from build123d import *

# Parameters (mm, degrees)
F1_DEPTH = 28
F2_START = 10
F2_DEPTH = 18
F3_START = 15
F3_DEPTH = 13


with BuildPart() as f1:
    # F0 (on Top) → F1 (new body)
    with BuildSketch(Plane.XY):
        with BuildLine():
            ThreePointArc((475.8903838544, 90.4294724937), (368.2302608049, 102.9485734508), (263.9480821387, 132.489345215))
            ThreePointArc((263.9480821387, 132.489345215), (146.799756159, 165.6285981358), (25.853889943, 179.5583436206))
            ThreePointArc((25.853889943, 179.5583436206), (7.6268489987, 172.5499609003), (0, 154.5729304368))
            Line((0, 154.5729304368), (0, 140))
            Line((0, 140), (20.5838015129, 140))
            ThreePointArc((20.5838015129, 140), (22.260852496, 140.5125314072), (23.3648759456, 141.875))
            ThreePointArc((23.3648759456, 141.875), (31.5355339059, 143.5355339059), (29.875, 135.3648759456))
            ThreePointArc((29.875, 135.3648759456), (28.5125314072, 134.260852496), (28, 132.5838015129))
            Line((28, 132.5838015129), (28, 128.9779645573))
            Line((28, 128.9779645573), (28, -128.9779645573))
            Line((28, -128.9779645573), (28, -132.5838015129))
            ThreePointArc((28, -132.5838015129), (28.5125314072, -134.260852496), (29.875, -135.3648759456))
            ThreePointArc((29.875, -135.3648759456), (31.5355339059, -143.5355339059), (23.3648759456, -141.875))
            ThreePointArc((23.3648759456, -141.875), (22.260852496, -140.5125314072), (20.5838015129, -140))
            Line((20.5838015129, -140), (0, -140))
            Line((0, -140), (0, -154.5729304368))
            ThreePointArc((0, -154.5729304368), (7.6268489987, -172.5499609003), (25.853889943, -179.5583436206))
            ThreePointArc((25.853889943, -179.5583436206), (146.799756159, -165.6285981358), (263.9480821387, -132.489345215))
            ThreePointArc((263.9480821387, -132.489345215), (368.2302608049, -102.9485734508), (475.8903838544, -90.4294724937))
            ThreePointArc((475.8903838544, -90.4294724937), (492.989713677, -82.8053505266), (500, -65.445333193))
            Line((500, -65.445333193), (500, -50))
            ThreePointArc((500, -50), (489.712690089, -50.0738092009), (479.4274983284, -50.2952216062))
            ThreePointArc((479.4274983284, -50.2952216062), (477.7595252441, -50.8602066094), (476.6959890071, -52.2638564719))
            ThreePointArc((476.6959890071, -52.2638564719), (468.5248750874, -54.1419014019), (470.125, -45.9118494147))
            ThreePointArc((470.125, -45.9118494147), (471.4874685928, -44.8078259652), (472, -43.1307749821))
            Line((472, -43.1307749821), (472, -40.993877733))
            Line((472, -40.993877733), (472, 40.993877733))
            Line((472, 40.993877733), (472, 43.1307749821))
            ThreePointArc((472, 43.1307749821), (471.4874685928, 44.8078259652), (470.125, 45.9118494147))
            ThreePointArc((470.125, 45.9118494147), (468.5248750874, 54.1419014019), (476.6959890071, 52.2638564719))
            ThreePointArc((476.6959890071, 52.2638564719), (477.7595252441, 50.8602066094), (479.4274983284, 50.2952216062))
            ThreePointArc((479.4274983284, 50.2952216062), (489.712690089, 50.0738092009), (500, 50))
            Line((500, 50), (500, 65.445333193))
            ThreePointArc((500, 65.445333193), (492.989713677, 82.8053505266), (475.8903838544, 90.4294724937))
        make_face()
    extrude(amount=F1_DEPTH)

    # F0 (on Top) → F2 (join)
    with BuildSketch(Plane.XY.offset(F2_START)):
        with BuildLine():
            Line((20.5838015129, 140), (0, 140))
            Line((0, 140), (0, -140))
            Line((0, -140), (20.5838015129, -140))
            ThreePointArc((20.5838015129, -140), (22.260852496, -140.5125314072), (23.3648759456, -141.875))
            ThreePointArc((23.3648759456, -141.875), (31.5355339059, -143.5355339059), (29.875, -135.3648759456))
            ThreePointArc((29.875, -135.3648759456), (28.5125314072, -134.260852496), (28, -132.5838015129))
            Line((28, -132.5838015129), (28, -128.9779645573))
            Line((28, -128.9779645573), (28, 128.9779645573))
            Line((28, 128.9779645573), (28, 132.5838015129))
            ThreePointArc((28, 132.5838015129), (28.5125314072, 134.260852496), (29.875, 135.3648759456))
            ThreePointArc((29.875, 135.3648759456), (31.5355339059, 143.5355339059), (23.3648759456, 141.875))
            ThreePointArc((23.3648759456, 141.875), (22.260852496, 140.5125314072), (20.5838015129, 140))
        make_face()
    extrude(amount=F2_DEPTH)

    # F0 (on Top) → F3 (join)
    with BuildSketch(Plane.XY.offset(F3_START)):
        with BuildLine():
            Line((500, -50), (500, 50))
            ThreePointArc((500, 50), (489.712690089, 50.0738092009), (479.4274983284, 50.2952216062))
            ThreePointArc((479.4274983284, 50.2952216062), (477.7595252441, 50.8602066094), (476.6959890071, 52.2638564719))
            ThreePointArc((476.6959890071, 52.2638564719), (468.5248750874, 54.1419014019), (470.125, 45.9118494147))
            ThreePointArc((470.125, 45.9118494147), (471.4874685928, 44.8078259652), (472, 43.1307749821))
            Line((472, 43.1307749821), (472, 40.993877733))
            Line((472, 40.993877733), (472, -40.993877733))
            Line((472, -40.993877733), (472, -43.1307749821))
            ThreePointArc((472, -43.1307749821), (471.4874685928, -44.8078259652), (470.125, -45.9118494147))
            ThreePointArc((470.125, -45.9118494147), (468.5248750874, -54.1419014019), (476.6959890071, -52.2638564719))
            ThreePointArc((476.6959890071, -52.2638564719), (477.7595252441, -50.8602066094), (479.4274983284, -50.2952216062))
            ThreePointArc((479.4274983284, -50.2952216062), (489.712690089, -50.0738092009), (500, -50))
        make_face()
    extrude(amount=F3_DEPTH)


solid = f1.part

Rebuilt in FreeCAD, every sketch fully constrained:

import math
import FreeCAD as App
import Part
import Sketcher

V = App.Vector

doc = App.newDocument("Part")
params = doc.addObject("Spreadsheet::Sheet", "Params")
for row, (alias, value) in enumerate([
    ("sketch1_radius", "25 mm"),
    ("sketch1_radius2", "3 mm"),
    ("sketch1_radius3", "5 mm"),
    ("pad1_length", "28 mm"),
    ("sketch2_radius", "3 mm"),
    ("sketch2_radius2", "5 mm"),
    ("sketch2_height", "280 mm"),
    ("pad2_length", "18 mm"),
    ("sketch3_radius", "3 mm"),
    ("sketch3_radius2", "5 mm"),
    ("sketch3_height", "100 mm"),
    ("pad3_length", "13 mm"),
], start=1):
    params.set(f"A{row}", alias)
    params.set(f"B{row}", "=" + value)
    params.setAlias(f"B{row}", alias)

body = doc.addObject("PartDesign::Body", "Body")

# Sketch on XY plane
sketch1 = body.newObject("Sketcher::SketchObject", "Sketch")
sketch1.AttachmentSupport = (doc.getObject("XY_Plane"), [""])
sketch1.MapMode = "FlatFace"
sketch1.addGeometry([
    Part.ArcOfCircle(Part.Circle(V(500, 766.944444, 0), V(0, 0, 1), 676.944444), math.radians(-110.407947), math.radians(-92.041041)),  # 0
    Part.ArcOfCircle(Part.Circle(V(0, -576.944444, 0), V(0, 0, 1), 756.944444), math.radians(69.592053), math.radians(88.042648)),  # 1
    Part.ArcOfCircle(Part.Circle(V(25, 154.57293, 0), V(0, 0, 1), 25), math.radians(88.042648), math.radians(180)),  # 2
    Part.LineSegment(V(0, 154.57293, 0), V(0, 140, 0)),  # 3
    Part.LineSegment(V(0, 140, 0), V(20.583802, 140, 0)),  # 4
    Part.ArcOfCircle(Part.Circle(V(20.583802, 143, 0), V(0, 0, 1), 3), math.radians(-90), math.radians(-22.024313)),  # 5
    Part.ArcOfCircle(Part.Circle(V(28, 140, 0), V(0, 0, 1), 5), math.radians(-67.975687), math.radians(157.975687)),  # 6
    Part.ArcOfCircle(Part.Circle(V(31, 132.583802, 0), V(0, 0, 1), 3), math.radians(112.024313), math.radians(180)),  # 7
    Part.LineSegment(V(28, 132.583802, 0), V(28, -132.583802, 0)),  # 8
    Part.ArcOfCircle(Part.Circle(V(31, -132.583802, 0), V(0, 0, 1), 3), math.radians(180), math.radians(247.975687)),  # 9
    Part.ArcOfCircle(Part.Circle(V(28, -140, 0), V(0, 0, 1), 5), math.radians(-157.975687), math.radians(67.975687)),  # 10
    Part.ArcOfCircle(Part.Circle(V(20.583802, -143, 0), V(0, 0, 1), 3), math.radians(22.024313), math.radians(90)),  # 11
    Part.LineSegment(V(20.583802, -140, 0), V(0, -140, 0)),  # 12
    Part.LineSegment(V(0, -140, 0), V(0, -154.57293, 0)),  # 13
    Part.ArcOfCircle(Part.Circle(V(25, -154.57293, 0), V(0, 0, 1), 25), math.radians(180), math.radians(271.957352)),  # 14
    Part.ArcOfCircle(Part.Circle(V(0, 576.944444, 0), V(0, 0, 1), 756.944444), math.radians(-88.042648), math.radians(-69.592053)),  # 15
    Part.ArcOfCircle(Part.Circle(V(500, -766.944444, 0), V(0, 0, 1), 676.944444), math.radians(92.041041), math.radians(110.407947)),  # 16
    Part.ArcOfCircle(Part.Circle(V(475, -65.445333, 0), V(0, 0, 1), 25), math.radians(-87.958959), math.radians(0)),  # 17
    Part.LineSegment(V(500, -65.445333, 0), V(500, -50, 0)),  # 18
    Part.ArcOfCircle(Part.Circle(V(500, -766.944445, 0), V(0, 0, 1), 716.944445), math.radians(90), math.radians(91.644311)),  # 19
    Part.ArcOfCircle(Part.Circle(V(479.513582, -53.293986, 0), V(0, 0, 1), 3), math.radians(91.644311), math.radians(159.917271)),  # 20
    Part.ArcOfCircle(Part.Circle(V(472, -50.546973, 0), V(0, 0, 1), 5), math.radians(112.024313), math.radians(339.917271)),  # 21
    Part.ArcOfCircle(Part.Circle(V(469, -43.130775, 0), V(0, 0, 1), 3), math.radians(-67.975687), math.radians(0)),  # 22
    Part.LineSegment(V(472, -43.130775, 0), V(472, 43.130775, 0)),  # 23
    Part.ArcOfCircle(Part.Circle(V(469, 43.130775, 0), V(0, 0, 1), 3), math.radians(0), math.radians(67.975687)),  # 24
    Part.ArcOfCircle(Part.Circle(V(472, 50.546973, 0), V(0, 0, 1), 5), math.radians(20.082729), math.radians(247.975687)),  # 25
    Part.ArcOfCircle(Part.Circle(V(479.513582, 53.293986, 0), V(0, 0, 1), 3), math.radians(-159.917271), math.radians(-91.644311)),  # 26
    Part.ArcOfCircle(Part.Circle(V(500, 766.944445, 0), V(0, 0, 1), 716.944445), math.radians(-91.644311), math.radians(-90)),  # 27
    Part.LineSegment(V(500, 50, 0), V(500, 65.445333, 0)),  # 28
    Part.ArcOfCircle(Part.Circle(V(475, 65.445333, 0), V(0, 0, 1), 25), math.radians(0), math.radians(87.958959)),  # 29
], False)
sketch1.addConstraint([
    Sketcher.Constraint("Tangent", 0, 1, 1, 1),
    Sketcher.Constraint("Tangent", 1, 2, 2, 1),
    Sketcher.Constraint("Tangent", 2, 2, 3, 1),
    Sketcher.Constraint("Coincident", 3, 2, 4, 1),
    Sketcher.Constraint("Tangent", 4, 2, 5, 1),
    Sketcher.Constraint("Tangent", 5, 2, 6, 2),
    Sketcher.Constraint("Tangent", 6, 1, 7, 1),
    Sketcher.Constraint("Tangent", 7, 2, 8, 1),
    Sketcher.Constraint("Tangent", 8, 2, 9, 1),
    Sketcher.Constraint("Tangent", 9, 2, 10, 2),
    Sketcher.Constraint("Tangent", 10, 1, 11, 1),
    Sketcher.Constraint("Tangent", 11, 2, 12, 1),
    Sketcher.Constraint("Coincident", 12, 2, 13, 1),
    Sketcher.Constraint("Tangent", 13, 2, 14, 1),
    Sketcher.Constraint("Tangent", 14, 2, 15, 1),
    Sketcher.Constraint("Tangent", 15, 2, 16, 2),
    Sketcher.Constraint("Tangent", 16, 1, 17, 1),
    Sketcher.Constraint("Tangent", 17, 2, 18, 1),
    Sketcher.Constraint("Coincident", 18, 2, 19, 1),
    Sketcher.Constraint("Tangent", 19, 2, 20, 1),
    Sketcher.Constraint("Tangent", 20, 2, 21, 2),
    Sketcher.Constraint("Tangent", 21, 1, 22, 1),
    Sketcher.Constraint("Tangent", 22, 2, 23, 1),
    Sketcher.Constraint("Tangent", 23, 2, 24, 1),
    Sketcher.Constraint("Tangent", 24, 2, 25, 2),
    Sketcher.Constraint("Tangent", 25, 1, 26, 1),
    Sketcher.Constraint("Tangent", 26, 2, 27, 1),
    Sketcher.Constraint("Coincident", 27, 2, 28, 1),
    Sketcher.Constraint("Tangent", 28, 2, 29, 1),
    Sketcher.Constraint("Tangent", 29, 2, 0, 2),
    Sketcher.Constraint("Vertical", 3),
    Sketcher.Constraint("Horizontal", 4),
    Sketcher.Constraint("Vertical", 8),
    Sketcher.Constraint("Horizontal", 12),
    Sketcher.Constraint("Vertical", 13),
    Sketcher.Constraint("Vertical", 18),
    Sketcher.Constraint("Vertical", 23),
    Sketcher.Constraint("Vertical", 28),
    Sketcher.Constraint("Coincident", 19, 3, 16, 3),
    Sketcher.Constraint("Coincident", 27, 3, 0, 3),
    Sketcher.Constraint("Equal", 5, 7),
    Sketcher.Constraint("Equal", 7, 9),
    Sketcher.Constraint("Equal", 6, 10),
    Sketcher.Constraint("Equal", 9, 11),
    Sketcher.Constraint("Equal", 2, 14),
    Sketcher.Constraint("Equal", 1, 15),
    Sketcher.Constraint("Equal", 0, 16),
    Sketcher.Constraint("Equal", 14, 17),
    Sketcher.Constraint("Equal", 11, 20),
    Sketcher.Constraint("Equal", 10, 21),
    Sketcher.Constraint("Equal", 20, 22),
    Sketcher.Constraint("Equal", 22, 24),
    Sketcher.Constraint("Equal", 21, 25),
    Sketcher.Constraint("Equal", 24, 26),
    Sketcher.Constraint("Equal", 19, 27),
    Sketcher.Constraint("Equal", 17, 29),
    Sketcher.Constraint("Symmetric", 1, 3, 15, 3, -1, 1),
    Sketcher.Constraint("Symmetric", 3, 2, 12, 2, -1, 1),
    Sketcher.Constraint("Symmetric", 6, 3, 10, 3, -1),
    Sketcher.Constraint("Symmetric", 2, 3, 14, 3, -1),
    Sketcher.Constraint("Symmetric", 21, 3, 25, 3, -1),
    Sketcher.Constraint("Symmetric", 17, 3, 29, 3, -1),
    Sketcher.Constraint("Horizontal", 6, 3, 3, 2),
    Sketcher.Constraint("Vertical", 10, 3, 7, 2),
    Sketcher.Constraint("Vertical", 27, 3, 17, 2),
    Sketcher.Constraint("Vertical", 25, 3, 22, 2),
    Sketcher.Constraint("Radius", 2, 25.0),
    Sketcher.Constraint("Radius", 5, 3.0),
    Sketcher.Constraint("Radius", 6, 5.0),
    Sketcher.Constraint("DistanceX", -1, 1, 0, 3, 500.0),
    Sketcher.Constraint("DistanceY", -1, 1, 5, 3, 143.0),
    Sketcher.Constraint("DistanceX", -1, 1, 6, 3, 28.0),
    Sketcher.Constraint("DistanceX", -1, 1, 21, 3, 472.0),
    Sketcher.Constraint("DistanceY", 18, 2, -1, 1, 50.0),
    Sketcher.Constraint("DistanceY", 15, 3, 0, 3, 190.0),
    Sketcher.Constraint("Radius", 0, 676.944444),
    Sketcher.Constraint("Radius", 1, 756.944444),
    Sketcher.Constraint("DistanceY", 23, 1, 23, 2, 86.26155),
])
sketch1.setExpression("Constraints[66]", "Params.sketch1_radius")
sketch1.setExpression("Constraints[67]", "Params.sketch1_radius2")
sketch1.setExpression("Constraints[68]", "Params.sketch1_radius3")
pad1 = body.newObject("PartDesign::Pad", "Pad")
pad1.Profile = sketch1
pad1.setExpression("Length", "Params.pad1_length")

# Sketch on XY plane
sketch2 = body.newObject("Sketcher::SketchObject", "Sketch001")
sketch2.AttachmentSupport = (doc.getObject("XY_Plane"), [""])
sketch2.MapMode = "FlatFace"
sketch2.AttachmentOffset = App.Placement(V(0, 0, 10), App.Rotation())
sketch2.addGeometry([
    Part.LineSegment(V(20.583802, 140, 0), V(0, 140, 0)),  # 0
    Part.LineSegment(V(0, 140, 0), V(0, -140, 0)),  # 1
    Part.LineSegment(V(0, -140, 0), V(20.583802, -140, 0)),  # 2
    Part.ArcOfCircle(Part.Circle(V(20.583802, -143, 0), V(0, 0, 1), 3), math.radians(22.024313), math.radians(90)),  # 3
    Part.ArcOfCircle(Part.Circle(V(28, -140, 0), V(0, 0, 1), 5), math.radians(-157.975687), math.radians(67.975687)),  # 4
    Part.ArcOfCircle(Part.Circle(V(31, -132.583802, 0), V(0, 0, 1), 3), math.radians(180), math.radians(247.975687)),  # 5
    Part.LineSegment(V(28, -132.583802, 0), V(28, 132.583802, 0)),  # 6
    Part.ArcOfCircle(Part.Circle(V(31, 132.583802, 0), V(0, 0, 1), 3), math.radians(112.024313), math.radians(180)),  # 7
    Part.ArcOfCircle(Part.Circle(V(28, 140, 0), V(0, 0, 1), 5), math.radians(-67.975687), math.radians(157.975687)),  # 8
    Part.ArcOfCircle(Part.Circle(V(20.583802, 143, 0), V(0, 0, 1), 3), math.radians(-90), math.radians(-22.024313)),  # 9
], False)
sketch2.addConstraint([
    Sketcher.Constraint("Coincident", 0, 2, 1, 1),
    Sketcher.Constraint("Coincident", 1, 2, 2, 1),
    Sketcher.Constraint("Tangent", 2, 2, 3, 2),
    Sketcher.Constraint("Tangent", 3, 1, 4, 1),
    Sketcher.Constraint("Tangent", 4, 2, 5, 2),
    Sketcher.Constraint("Tangent", 5, 1, 6, 1),
    Sketcher.Constraint("Tangent", 6, 2, 7, 2),
    Sketcher.Constraint("Tangent", 7, 1, 8, 1),
    Sketcher.Constraint("Tangent", 8, 2, 9, 2),
    Sketcher.Constraint("Tangent", 9, 1, 0, 1),
    Sketcher.Constraint("Horizontal", 0),
    Sketcher.Constraint("Vertical", 1),
    Sketcher.Constraint("Horizontal", 2),
    Sketcher.Constraint("Vertical", 6),
    Sketcher.Constraint("Equal", 3, 5),
    Sketcher.Constraint("Equal", 5, 7),
    Sketcher.Constraint("Equal", 4, 8),
    Sketcher.Constraint("Equal", 7, 9),
    Sketcher.Constraint("Symmetric", 0, 2, 1, 2, -1, 1),
    Sketcher.Constraint("Symmetric", 4, 3, 8, 3, -1),
    Sketcher.Constraint("Horizontal", 8, 3, 0, 2),
    Sketcher.Constraint("Vertical", 8, 3, 5, 1),
    Sketcher.Constraint("Radius", 3, 3.0),
    Sketcher.Constraint("Radius", 4, 5.0),
    Sketcher.Constraint("DistanceY", 1, 2, 1, 1, 280.0),
    Sketcher.Constraint("DistanceX", -1, 1, 4, 3, 28.0),
])
sketch2.setExpression("Constraints[22]", "Params.sketch2_radius")
sketch2.setExpression("Constraints[23]", "Params.sketch2_radius2")
sketch2.setExpression("Constraints[24]", "Params.sketch2_height")
pad2 = body.newObject("PartDesign::Pad", "Pad001")
pad2.Profile = sketch2
pad2.setExpression("Length", "Params.pad2_length")

# Sketch on XY plane
sketch3 = body.newObject("Sketcher::SketchObject", "Sketch002")
sketch3.AttachmentSupport = (doc.getObject("XY_Plane"), [""])
sketch3.MapMode = "FlatFace"
sketch3.AttachmentOffset = App.Placement(V(0, 0, 15), App.Rotation())
sketch3.addGeometry([
    Part.LineSegment(V(500, -50, 0), V(500, 50, 0)),  # 0
    Part.ArcOfCircle(Part.Circle(V(500, 766.944445, 0), V(0, 0, 1), 716.944445), math.radians(-91.644311), math.radians(-90)),  # 1
    Part.ArcOfCircle(Part.Circle(V(479.513582, 53.293986, 0), V(0, 0, 1), 3), math.radians(-159.917271), math.radians(-91.644311)),  # 2
    Part.ArcOfCircle(Part.Circle(V(472, 50.546973, 0), V(0, 0, 1), 5), math.radians(20.082729), math.radians(247.975687)),  # 3
    Part.ArcOfCircle(Part.Circle(V(469, 43.130775, 0), V(0, 0, 1), 3), math.radians(0), math.radians(67.975687)),  # 4
    Part.LineSegment(V(472, 43.130775, 0), V(472, -43.130775, 0)),  # 5
    Part.ArcOfCircle(Part.Circle(V(469, -43.130775, 0), V(0, 0, 1), 3), math.radians(-67.975687), math.radians(0)),  # 6
    Part.ArcOfCircle(Part.Circle(V(472, -50.546973, 0), V(0, 0, 1), 5), math.radians(112.024313), math.radians(339.917271)),  # 7
    Part.ArcOfCircle(Part.Circle(V(479.513582, -53.293986, 0), V(0, 0, 1), 3), math.radians(91.644311), math.radians(159.917271)),  # 8
    Part.ArcOfCircle(Part.Circle(V(500, -766.944445, 0), V(0, 0, 1), 716.944445), math.radians(90), math.radians(91.644311)),  # 9
], False)
sketch3.addConstraint([
    Sketcher.Constraint("Coincident", 0, 2, 1, 2),
    Sketcher.Constraint("Tangent", 1, 1, 2, 2),
    Sketcher.Constraint("Tangent", 2, 1, 3, 1),
    Sketcher.Constraint("Tangent", 3, 2, 4, 2),
    Sketcher.Constraint("Tangent", 4, 1, 5, 1),
    Sketcher.Constraint("Tangent", 5, 2, 6, 2),
    Sketcher.Constraint("Tangent", 6, 1, 7, 1),
    Sketcher.Constraint("Tangent", 7, 2, 8, 2),
    Sketcher.Constraint("Tangent", 8, 1, 9, 2),
    Sketcher.Constraint("Coincident", 9, 1, 0, 1),
    Sketcher.Constraint("Vertical", 0),
    Sketcher.Constraint("Vertical", 5),
    Sketcher.Constraint("Equal", 2, 4),
    Sketcher.Constraint("Equal", 4, 6),
    Sketcher.Constraint("Equal", 3, 7),
    Sketcher.Constraint("Equal", 6, 8),
    Sketcher.Constraint("Equal", 1, 9),
    Sketcher.Constraint("Symmetric", 3, 3, 7, 3, -1),
    Sketcher.Constraint("Symmetric", 1, 3, 9, 3, -1),
    Sketcher.Constraint("Vertical", 9, 3, 0, 2),
    Sketcher.Constraint("Vertical", 7, 3, 4, 1),
    Sketcher.Constraint("Radius", 2, 3.0),
    Sketcher.Constraint("Radius", 3, 5.0),
    Sketcher.Constraint("DistanceY", 0, 1, 0, 2, 100.0),
    Sketcher.Constraint("DistanceX", -1, 1, 1, 3, 500.0),
    Sketcher.Constraint("DistanceX", -1, 1, 3, 3, 472.0),
    Sketcher.Constraint("Radius", 1, 716.944445),
    Sketcher.Constraint("DistanceY", 5, 2, 5, 1, 86.26155),
])
sketch3.setExpression("Constraints[21]", "Params.sketch3_radius")
sketch3.setExpression("Constraints[22]", "Params.sketch3_radius2")
sketch3.setExpression("Constraints[23]", "Params.sketch3_height")
pad3 = body.newObject("PartDesign::Pad", "Pad002")
pad3.Profile = sketch3
pad3.setExpression("Length", "Params.pad3_length")

doc.recompute()
